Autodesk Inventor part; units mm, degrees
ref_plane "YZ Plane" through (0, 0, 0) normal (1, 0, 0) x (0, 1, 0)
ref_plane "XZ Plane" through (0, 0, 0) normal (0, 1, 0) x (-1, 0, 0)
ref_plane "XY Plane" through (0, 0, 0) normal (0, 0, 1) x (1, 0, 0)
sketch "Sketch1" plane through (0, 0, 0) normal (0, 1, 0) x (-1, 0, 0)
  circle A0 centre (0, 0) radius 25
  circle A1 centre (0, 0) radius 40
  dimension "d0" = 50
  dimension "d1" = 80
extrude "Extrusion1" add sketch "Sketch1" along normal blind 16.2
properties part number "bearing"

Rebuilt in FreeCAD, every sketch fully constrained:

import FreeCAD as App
import Part
import Sketcher
from FreeCAD import Vector
Q = App.Units.Quantity

doc = App.newDocument("Part")
body = doc.addObject("PartDesign::Body", "Body")

# Sketch on XZ plane
sketch1 = body.newObject("Sketcher::SketchObject", "Sketch")
sketch1.AttachmentSupport = (doc.getObject("XZ_Plane"), [""])
sketch1.MapMode = "FlatFace"
sketch1.addGeometry([
    Part.Circle(Vector(0, 0, 0), Vector(0, 0, 1), 40),
    Part.Circle(Vector(0, 0, 0), Vector(0, 0, 1), 25),
], False)
sketch1.addConstraint([
    Sketcher.Constraint("Coincident", 0, 3, -1, 1),
    Sketcher.Constraint("Coincident", 1, 3, -1, 1),
    Sketcher.Constraint("Diameter", 0, Q("80 mm")),
    Sketcher.Constraint("Diameter", 1, Q("50 mm")),
])
pad1 = body.newObject("PartDesign::Pad", "Pad")
pad1.Profile = sketch1
pad1.Length = 16.2
pad1.Reversed = True

doc.recompute()
